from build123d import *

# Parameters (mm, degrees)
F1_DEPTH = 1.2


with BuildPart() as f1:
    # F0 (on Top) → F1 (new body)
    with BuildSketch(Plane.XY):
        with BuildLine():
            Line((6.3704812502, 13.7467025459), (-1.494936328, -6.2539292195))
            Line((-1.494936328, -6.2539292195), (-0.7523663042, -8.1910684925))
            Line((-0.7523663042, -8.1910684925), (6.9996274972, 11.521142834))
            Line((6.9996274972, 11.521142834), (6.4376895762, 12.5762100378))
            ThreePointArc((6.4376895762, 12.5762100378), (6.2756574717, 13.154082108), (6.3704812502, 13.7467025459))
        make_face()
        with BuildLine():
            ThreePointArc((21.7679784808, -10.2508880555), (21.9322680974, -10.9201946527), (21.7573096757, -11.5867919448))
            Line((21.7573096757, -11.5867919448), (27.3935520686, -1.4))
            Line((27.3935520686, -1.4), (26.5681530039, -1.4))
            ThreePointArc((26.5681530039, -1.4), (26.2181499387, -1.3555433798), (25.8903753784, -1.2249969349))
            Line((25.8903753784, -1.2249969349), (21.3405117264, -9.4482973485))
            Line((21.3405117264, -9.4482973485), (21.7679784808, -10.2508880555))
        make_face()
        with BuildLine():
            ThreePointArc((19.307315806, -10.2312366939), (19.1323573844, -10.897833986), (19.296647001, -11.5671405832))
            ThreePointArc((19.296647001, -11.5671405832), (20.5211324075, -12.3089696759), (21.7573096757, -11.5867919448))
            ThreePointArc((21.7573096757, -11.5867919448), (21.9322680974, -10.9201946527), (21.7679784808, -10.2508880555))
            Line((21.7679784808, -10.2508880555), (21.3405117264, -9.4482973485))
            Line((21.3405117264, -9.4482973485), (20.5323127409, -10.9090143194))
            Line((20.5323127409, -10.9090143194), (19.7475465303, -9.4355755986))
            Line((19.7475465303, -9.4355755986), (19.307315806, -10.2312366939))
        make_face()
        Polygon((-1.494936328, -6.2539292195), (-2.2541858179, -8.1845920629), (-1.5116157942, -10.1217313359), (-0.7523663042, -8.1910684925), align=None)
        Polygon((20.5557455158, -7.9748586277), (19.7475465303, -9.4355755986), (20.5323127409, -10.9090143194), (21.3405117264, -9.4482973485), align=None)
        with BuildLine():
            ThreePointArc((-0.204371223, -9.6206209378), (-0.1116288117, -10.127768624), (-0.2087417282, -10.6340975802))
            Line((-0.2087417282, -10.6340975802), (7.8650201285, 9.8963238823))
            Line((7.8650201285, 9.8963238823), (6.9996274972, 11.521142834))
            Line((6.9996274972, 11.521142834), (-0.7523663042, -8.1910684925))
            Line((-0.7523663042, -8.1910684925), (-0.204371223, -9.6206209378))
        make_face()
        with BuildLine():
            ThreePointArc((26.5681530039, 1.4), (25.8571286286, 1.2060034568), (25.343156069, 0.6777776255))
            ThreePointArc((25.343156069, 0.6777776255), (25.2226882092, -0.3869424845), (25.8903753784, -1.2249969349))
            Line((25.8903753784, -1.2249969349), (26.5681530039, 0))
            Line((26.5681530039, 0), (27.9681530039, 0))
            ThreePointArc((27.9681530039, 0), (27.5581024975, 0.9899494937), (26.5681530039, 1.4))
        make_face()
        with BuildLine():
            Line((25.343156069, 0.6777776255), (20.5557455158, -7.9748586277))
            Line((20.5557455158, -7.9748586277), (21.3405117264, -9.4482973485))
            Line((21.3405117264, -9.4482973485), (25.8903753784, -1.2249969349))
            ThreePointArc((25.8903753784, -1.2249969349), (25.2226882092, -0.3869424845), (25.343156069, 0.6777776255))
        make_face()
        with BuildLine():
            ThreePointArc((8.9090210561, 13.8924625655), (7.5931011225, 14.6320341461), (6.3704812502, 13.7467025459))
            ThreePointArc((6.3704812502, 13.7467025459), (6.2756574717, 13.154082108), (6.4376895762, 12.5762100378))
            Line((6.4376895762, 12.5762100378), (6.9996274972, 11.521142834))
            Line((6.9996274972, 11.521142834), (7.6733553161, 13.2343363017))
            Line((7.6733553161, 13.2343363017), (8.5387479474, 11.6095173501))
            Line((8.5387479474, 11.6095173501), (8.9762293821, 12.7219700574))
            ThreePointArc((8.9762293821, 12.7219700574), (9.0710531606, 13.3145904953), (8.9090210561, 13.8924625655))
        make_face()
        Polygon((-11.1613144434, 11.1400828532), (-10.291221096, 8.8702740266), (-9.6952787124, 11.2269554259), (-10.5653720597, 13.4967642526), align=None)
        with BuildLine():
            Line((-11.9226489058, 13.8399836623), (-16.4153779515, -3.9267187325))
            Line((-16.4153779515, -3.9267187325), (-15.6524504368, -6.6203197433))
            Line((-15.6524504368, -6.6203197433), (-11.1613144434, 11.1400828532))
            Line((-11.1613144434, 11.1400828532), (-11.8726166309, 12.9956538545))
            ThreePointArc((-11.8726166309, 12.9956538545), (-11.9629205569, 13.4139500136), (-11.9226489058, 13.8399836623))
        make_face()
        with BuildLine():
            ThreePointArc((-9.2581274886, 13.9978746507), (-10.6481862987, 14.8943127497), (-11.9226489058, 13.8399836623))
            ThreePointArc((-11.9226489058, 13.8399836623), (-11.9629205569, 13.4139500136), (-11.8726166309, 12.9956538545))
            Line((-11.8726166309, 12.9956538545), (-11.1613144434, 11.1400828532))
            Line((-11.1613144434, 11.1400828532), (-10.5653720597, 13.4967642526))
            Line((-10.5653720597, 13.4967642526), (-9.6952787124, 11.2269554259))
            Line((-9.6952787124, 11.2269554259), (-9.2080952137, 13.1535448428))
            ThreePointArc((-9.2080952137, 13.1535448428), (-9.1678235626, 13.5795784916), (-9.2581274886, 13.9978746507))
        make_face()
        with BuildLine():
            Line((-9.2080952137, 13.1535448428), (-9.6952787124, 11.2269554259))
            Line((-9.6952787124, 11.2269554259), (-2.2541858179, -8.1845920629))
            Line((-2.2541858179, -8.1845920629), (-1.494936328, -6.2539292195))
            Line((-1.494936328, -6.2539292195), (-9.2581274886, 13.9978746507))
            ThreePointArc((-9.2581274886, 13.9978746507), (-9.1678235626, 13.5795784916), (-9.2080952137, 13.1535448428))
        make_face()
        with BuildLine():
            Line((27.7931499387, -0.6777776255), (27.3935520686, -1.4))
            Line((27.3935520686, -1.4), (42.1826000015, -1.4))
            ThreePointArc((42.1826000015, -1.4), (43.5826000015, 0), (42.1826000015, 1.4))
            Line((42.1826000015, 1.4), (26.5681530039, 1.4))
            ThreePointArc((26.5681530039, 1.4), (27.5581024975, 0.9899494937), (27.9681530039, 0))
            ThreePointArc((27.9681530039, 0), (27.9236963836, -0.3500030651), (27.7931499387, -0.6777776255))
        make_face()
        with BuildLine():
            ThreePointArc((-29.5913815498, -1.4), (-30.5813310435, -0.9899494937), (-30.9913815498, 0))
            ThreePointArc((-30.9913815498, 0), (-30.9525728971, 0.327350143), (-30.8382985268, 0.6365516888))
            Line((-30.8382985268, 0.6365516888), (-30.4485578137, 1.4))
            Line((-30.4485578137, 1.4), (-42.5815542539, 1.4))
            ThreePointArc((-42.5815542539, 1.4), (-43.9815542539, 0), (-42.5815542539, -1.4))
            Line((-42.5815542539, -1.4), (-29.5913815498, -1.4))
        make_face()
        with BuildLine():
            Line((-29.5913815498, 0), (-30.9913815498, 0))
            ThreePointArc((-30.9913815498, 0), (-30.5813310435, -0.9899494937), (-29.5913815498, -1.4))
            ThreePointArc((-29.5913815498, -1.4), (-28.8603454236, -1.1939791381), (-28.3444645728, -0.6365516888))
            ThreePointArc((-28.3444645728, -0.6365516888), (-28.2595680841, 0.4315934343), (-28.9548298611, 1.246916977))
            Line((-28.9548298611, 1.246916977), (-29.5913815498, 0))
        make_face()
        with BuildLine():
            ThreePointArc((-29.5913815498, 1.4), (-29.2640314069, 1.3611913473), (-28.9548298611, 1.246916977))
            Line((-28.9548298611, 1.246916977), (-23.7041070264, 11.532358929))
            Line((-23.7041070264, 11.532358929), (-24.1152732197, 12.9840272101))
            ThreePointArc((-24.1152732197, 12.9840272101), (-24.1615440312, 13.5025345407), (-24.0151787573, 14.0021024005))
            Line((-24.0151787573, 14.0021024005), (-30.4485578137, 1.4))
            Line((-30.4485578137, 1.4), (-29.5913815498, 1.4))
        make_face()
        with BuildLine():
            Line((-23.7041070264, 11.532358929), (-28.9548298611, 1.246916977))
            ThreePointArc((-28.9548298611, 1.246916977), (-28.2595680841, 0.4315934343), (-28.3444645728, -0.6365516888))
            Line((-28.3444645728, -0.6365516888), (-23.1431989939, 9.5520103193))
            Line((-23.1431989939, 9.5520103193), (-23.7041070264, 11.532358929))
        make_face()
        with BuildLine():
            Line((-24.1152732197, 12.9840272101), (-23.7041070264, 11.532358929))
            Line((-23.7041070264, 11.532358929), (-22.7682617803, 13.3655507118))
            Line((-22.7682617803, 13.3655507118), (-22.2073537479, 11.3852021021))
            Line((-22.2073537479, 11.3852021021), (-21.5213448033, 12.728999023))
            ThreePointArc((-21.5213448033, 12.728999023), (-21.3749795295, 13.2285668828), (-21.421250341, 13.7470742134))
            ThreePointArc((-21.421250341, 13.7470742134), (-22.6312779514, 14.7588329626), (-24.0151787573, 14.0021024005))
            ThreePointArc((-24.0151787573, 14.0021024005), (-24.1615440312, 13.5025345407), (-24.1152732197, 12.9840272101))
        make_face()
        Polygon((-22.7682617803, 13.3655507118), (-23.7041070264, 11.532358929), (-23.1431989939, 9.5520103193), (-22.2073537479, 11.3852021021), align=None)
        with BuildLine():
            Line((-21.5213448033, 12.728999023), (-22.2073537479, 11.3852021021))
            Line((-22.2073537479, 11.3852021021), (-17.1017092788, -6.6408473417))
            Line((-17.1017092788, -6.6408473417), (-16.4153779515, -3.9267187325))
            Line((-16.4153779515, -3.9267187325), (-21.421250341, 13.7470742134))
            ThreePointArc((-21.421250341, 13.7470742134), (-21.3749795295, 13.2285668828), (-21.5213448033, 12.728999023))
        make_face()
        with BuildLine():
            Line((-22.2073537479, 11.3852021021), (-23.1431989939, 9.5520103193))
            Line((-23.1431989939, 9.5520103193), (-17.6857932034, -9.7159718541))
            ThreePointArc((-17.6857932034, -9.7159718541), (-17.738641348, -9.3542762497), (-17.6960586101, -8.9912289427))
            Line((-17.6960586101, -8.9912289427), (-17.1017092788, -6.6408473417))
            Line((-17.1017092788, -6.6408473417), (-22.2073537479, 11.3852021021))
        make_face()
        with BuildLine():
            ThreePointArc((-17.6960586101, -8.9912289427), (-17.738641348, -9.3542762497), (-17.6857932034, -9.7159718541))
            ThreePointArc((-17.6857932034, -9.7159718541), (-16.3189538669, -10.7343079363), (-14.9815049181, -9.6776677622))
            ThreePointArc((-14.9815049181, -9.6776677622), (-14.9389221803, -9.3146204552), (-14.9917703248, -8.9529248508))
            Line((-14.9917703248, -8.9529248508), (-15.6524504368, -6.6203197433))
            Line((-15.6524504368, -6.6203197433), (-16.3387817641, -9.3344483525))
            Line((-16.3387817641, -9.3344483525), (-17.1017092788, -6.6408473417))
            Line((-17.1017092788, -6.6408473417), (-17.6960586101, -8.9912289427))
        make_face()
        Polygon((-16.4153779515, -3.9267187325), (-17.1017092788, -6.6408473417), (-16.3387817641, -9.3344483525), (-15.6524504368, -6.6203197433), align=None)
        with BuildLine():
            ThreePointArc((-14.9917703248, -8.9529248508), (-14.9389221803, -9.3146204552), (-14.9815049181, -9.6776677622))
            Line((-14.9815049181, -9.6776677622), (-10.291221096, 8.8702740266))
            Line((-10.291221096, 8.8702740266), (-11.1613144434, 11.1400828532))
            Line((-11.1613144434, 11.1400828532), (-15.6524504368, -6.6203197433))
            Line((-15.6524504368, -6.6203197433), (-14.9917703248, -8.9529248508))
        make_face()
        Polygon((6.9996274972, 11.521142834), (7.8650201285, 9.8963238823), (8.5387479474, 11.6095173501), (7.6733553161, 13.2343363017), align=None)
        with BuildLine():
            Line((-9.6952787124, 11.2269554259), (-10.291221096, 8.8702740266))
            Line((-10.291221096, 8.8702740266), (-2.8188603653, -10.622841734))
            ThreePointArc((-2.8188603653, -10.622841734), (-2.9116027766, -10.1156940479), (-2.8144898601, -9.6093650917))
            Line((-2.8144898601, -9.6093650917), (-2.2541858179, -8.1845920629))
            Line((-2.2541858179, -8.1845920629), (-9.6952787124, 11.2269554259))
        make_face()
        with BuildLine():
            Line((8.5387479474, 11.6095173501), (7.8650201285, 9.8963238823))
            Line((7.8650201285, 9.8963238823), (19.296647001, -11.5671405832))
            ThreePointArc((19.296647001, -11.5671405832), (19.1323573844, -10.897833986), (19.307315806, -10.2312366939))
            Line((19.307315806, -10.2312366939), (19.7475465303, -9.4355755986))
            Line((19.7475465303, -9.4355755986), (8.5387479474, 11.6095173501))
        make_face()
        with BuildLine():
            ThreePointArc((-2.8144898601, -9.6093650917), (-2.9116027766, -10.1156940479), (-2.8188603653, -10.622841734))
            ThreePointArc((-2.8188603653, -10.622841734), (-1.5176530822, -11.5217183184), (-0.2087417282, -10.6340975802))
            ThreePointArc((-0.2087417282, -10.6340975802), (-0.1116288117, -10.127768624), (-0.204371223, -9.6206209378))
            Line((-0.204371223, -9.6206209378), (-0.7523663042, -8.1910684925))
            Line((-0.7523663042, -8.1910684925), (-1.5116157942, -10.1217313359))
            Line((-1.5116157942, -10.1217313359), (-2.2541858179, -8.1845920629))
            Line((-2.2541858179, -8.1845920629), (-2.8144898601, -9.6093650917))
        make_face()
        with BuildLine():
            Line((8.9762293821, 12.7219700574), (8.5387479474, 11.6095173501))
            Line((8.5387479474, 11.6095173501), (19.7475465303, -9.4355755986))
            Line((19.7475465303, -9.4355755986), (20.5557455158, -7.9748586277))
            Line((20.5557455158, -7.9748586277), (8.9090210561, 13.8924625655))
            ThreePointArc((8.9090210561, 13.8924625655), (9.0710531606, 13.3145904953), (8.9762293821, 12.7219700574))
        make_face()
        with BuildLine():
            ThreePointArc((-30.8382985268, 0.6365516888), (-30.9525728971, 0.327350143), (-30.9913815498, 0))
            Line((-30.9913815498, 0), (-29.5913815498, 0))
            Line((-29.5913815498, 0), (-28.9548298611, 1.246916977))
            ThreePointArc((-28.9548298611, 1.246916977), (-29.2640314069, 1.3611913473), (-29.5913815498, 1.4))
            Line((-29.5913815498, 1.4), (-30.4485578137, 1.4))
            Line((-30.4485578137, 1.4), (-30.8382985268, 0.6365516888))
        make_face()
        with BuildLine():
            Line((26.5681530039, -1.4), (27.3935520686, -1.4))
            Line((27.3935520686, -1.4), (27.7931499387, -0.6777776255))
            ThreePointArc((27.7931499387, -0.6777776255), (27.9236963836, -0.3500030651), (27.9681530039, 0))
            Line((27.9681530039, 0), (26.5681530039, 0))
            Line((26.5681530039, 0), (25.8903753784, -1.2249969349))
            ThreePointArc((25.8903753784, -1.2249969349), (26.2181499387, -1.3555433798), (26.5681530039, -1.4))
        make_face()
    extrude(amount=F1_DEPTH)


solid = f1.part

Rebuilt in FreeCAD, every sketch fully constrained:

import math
import FreeCAD as App
import Part
import Sketcher

V = App.Vector
Q = App.Units.Quantity

doc = App.newDocument("Part")
params = doc.addObject("Spreadsheet::Sheet", "Params")
for row, (alias, value) in enumerate([
    ("sketch1_radius", "1.4 mm"),
    ("pad1_length", "1.2 mm"),
], start=1):
    params.set(f"A{row}", alias)
    params.set(f"B{row}", "=" + value)
    params.setAlias(f"B{row}", alias)

body = doc.addObject("PartDesign::Body", "Body")

sketch1 = body.newObject("Sketcher::SketchObject", "Sketch")
sketch1.AttachmentSupport = (doc.getObject("XY_Plane"), [""])
sketch1.MapMode = "FlatFace"
sketch1.addGeometry(Part.LineSegment(V(21.75731, -11.586792, 0), V(27.393552, -1.4, 0)), False)
sketch1.addGeometry(Part.LineSegment(V(27.393552, -1.4, 0), V(42.1826, -1.4, 0)), False)
sketch1.addGeometry(Part.ArcOfCircle(Part.Circle(V(42.1826, 0, 0), V(0, 0, 1), 1.4), math.radians(-90), math.radians(90)), False)
sketch1.addGeometry(Part.LineSegment(V(42.1826, 1.4, 0), V(26.568153, 1.4, 0)), False)
sketch1.addGeometry(Part.ArcOfCircle(Part.Circle(V(26.568153, 0, 0), V(0, 0, 1), 1.4), math.radians(90), math.radians(151.044716)), False)
sketch1.addGeometry(Part.LineSegment(V(25.343156, 0.677778, 0), V(20.555746, -7.974859, 0)), False)
sketch1.addGeometry(Part.LineSegment(V(20.555746, -7.974859, 0), V(8.909021, 13.892463, 0)), False)
sketch1.addGeometry(Part.ArcOfCircle(Part.Circle(V(7.673355, 13.234336, 0), V(0, 0, 1), 1.4), math.radians(28.040151), math.radians(158.532347)), False)
sketch1.addGeometry(Part.LineSegment(V(6.370481, 13.746703, 0), V(-1.494936, -6.253929, 0)), False)
sketch1.addGeometry(Part.LineSegment(V(-1.494936, -6.253929, 0), V(-9.258127, 13.997875, 0)), False)
sketch1.addGeometry(Part.ArcOfCircle(Part.Circle(V(-10.565372, 13.496764, 0), V(0, 0, 1), 1.4), math.radians(20.973493), math.radians(165.808904)), False)
sketch1.addGeometry(Part.LineSegment(V(-11.922649, 13.839984, 0), V(-16.415378, -3.926719, 0)), False)
sketch1.addGeometry(Part.LineSegment(V(-16.415378, -3.926719, 0), V(-21.42125, 13.747074, 0)), False)
sketch1.addGeometry(Part.ArcOfCircle(Part.Circle(V(-22.768262, 13.365551, 0), V(0, 0, 1), 1.4), math.radians(15.814085), math.radians(152.955668)), False)
sketch1.addGeometry(Part.LineSegment(V(-24.015179, 14.002102, 0), V(-30.448558, 1.4, 0)), False)
sketch1.addGeometry(Part.LineSegment(V(-30.448558, 1.4, 0), V(-42.581554, 1.4, 0)), False)
sketch1.addGeometry(Part.ArcOfCircle(Part.Circle(V(-42.581554, 0, 0), V(0, 0, 1), 1.4), math.radians(90), math.radians(270)), False)
sketch1.addGeometry(Part.LineSegment(V(-42.581554, -1.4, 0), V(-29.591382, -1.4, 0)), False)
sketch1.addGeometry(Part.ArcOfCircle(Part.Circle(V(-29.591382, 0, 0), V(0, 0, 1), 1.4), math.radians(-90), math.radians(-27.044332)), False)
sketch1.addGeometry(Part.LineSegment(V(-28.344465, -0.636552, 0), V(-23.143199, 9.55201, 0)), False)
sketch1.addGeometry(Part.LineSegment(V(-23.143199, 9.55201, 0), V(-17.685793, -9.715972, 0)), False)
sketch1.addGeometry(Part.ArcOfCircle(Part.Circle(V(-16.338782, -9.334448, 0), V(0, 0, 1), 1.4), math.radians(-164.185915), math.radians(-14.191096)), False)
sketch1.addGeometry(Part.LineSegment(V(-14.981505, -9.677668, 0), V(-10.291221, 8.870274, 0)), False)
sketch1.addGeometry(Part.LineSegment(V(-10.291221, 8.870274, 0), V(-2.81886, -10.622842, 0)), False)
sketch1.addGeometry(Part.ArcOfCircle(Part.Circle(V(-1.511616, -10.121731, 0), V(0, 0, 1), 1.4), math.radians(-159.026507), math.radians(-21.467653)), False)
sketch1.addGeometry(Part.LineSegment(V(-0.208742, -10.634098, 0), V(7.86502, 9.896324, 0)), False)
sketch1.addGeometry(Part.LineSegment(V(7.86502, 9.896324, 0), V(19.296647, -11.567141, 0)), False)
sketch1.addGeometry(Part.ArcOfCircle(Part.Circle(V(20.532313, -10.909014, 0), V(0, 0, 1), 1.4), math.radians(-151.959849), math.radians(-28.955283)), False)
sketch1.addConstraint(Sketcher.Constraint("Coincident", 0, 2, 1, 1))
sketch1.addConstraint(Sketcher.Constraint("Tangent", 1, 2, 2, 1))
sketch1.addConstraint(Sketcher.Constraint("Tangent", 2, 2, 3, 1))
sketch1.addConstraint(Sketcher.Constraint("Tangent", 3, 2, 4, 1))
sketch1.addConstraint(Sketcher.Constraint("Tangent", 4, 2, 5, 1))
sketch1.addConstraint(Sketcher.Constraint("Coincident", 5, 2, 6, 1))
sketch1.addConstraint(Sketcher.Constraint("Tangent", 6, 2, 7, 1))
sketch1.addConstraint(Sketcher.Constraint("Tangent", 7, 2, 8, 1))
sketch1.addConstraint(Sketcher.Constraint("Coincident", 8, 2, 9, 1))
sketch1.addConstraint(Sketcher.Constraint("Tangent", 9, 2, 10, 1))
sketch1.addConstraint(Sketcher.Constraint("Tangent", 10, 2, 11, 1))
sketch1.addConstraint(Sketcher.Constraint("Coincident", 11, 2, 12, 1))
sketch1.addConstraint(Sketcher.Constraint("Tangent", 12, 2, 13, 1))
sketch1.addConstraint(Sketcher.Constraint("Tangent", 13, 2, 14, 1))
sketch1.addConstraint(Sketcher.Constraint("Coincident", 14, 2, 15, 1))
sketch1.addConstraint(Sketcher.Constraint("Tangent", 15, 2, 16, 1))
sketch1.addConstraint(Sketcher.Constraint("Tangent", 16, 2, 17, 1))
sketch1.addConstraint(Sketcher.Constraint("Tangent", 17, 2, 18, 1))
sketch1.addConstraint(Sketcher.Constraint("Tangent", 18, 2, 19, 1))
sketch1.addConstraint(Sketcher.Constraint("Coincident", 19, 2, 20, 1))
sketch1.addConstraint(Sketcher.Constraint("Tangent", 20, 2, 21, 1))
sketch1.addConstraint(Sketcher.Constraint("Tangent", 21, 2, 22, 1))
sketch1.addConstraint(Sketcher.Constraint("Coincident", 22, 2, 23, 1))
sketch1.addConstraint(Sketcher.Constraint("Tangent", 23, 2, 24, 1))
sketch1.addConstraint(Sketcher.Constraint("Tangent", 24, 2, 25, 1))
sketch1.addConstraint(Sketcher.Constraint("Coincident", 25, 2, 26, 1))
sketch1.addConstraint(Sketcher.Constraint("Tangent", 26, 2, 27, 1))
sketch1.addConstraint(Sketcher.Constraint("Tangent", 27, 2, 0, 1))
sketch1.addConstraint(Sketcher.Constraint("Horizontal", 1))
sketch1.addConstraint(Sketcher.Constraint("Horizontal", 3))
sketch1.addConstraint(Sketcher.Constraint("Horizontal", 15))
sketch1.addConstraint(Sketcher.Constraint("Horizontal", 17))
sketch1.addConstraint(Sketcher.Constraint("Equal", 2, 4))
sketch1.addConstraint(Sketcher.Constraint("Equal", 4, 7))
sketch1.addConstraint(Sketcher.Constraint("Equal", 7, 10))
sketch1.addConstraint(Sketcher.Constraint("Equal", 10, 13))
sketch1.addConstraint(Sketcher.Constraint("Equal", 13, 16))
sketch1.addConstraint(Sketcher.Constraint("Equal", 16, 18))
sketch1.addConstraint(Sketcher.Constraint("Equal", 18, 21))
sketch1.addConstraint(Sketcher.Constraint("Equal", 21, 24))
sketch1.addConstraint(Sketcher.Constraint("Equal", 24, 27))
sketch1.addConstraint(Sketcher.Constraint("PointOnObject", 2, 3, -1))
sketch1.addConstraint(Sketcher.Constraint("PointOnObject", 16, 3, -1))
sketch1.addConstraint(Sketcher.Constraint("Parallel", 0, 5))
sketch1.addConstraint(Sketcher.Constraint("Parallel", 14, 19))
sketch1.addConstraint(Sketcher.Constraint("Parallel", 12, 20))
sketch1.addConstraint(Sketcher.Constraint("Parallel", 11, 22))
sketch1.addConstraint(Sketcher.Constraint("Parallel", 9, 23))
sketch1.addConstraint(Sketcher.Constraint("Parallel", 8, 25))
sketch1.addConstraint(Sketcher.Constraint("Parallel", 6, 26))
sketch1.addConstraint(Sketcher.Constraint("Radius", 2, Q("1.4 mm")))
sketch1.addConstraint(Sketcher.Constraint("DistanceY", 21, 3, 13, 3, Q("22.699999 mm")))
sketch1.addConstraint(Sketcher.Constraint("DistanceX", 25, 2, 6, 2, Q("1.044001 mm")))
sketch1.addConstraint(Sketcher.Constraint("DistanceX", -1, 1, 2, 3, Q("42.1826 mm")))
sketch1.addConstraint(Sketcher.Constraint("DistanceX", 19, 2, -1, 1, Q("23.143199 mm")))
sketch1.addConstraint(Sketcher.Constraint("DistanceX", 18, 3, 21, 3, Q("13.2526 mm")))
sketch1.addConstraint(Sketcher.Constraint("DistanceX", 4, 3, 0, 2, Q("0.825399 mm")))
sketch1.addConstraint(Sketcher.Constraint("DistanceY", 10, 3, 6, 2, Q("0.395698 mm")))
sketch1.addConstraint(Sketcher.Constraint("DistanceX", 12, 2, 10, 2, Q("9.498601 mm")))
sketch1.addConstraint(Sketcher.Constraint("DistanceY", 12, 2, 9, 2, Q("0.2508 mm")))
sketch1.addConstraint(Sketcher.Constraint("DistanceY", 22, 2, 9, 2, Q("5.127601 mm")))
sketch1.addConstraint(Sketcher.Constraint("DistanceX", 26, 2, 5, 2, Q("1.259099 mm")))
sketch1.addConstraint(Sketcher.Constraint("Distance", 5, Q("9.888752 mm")))
sketch1.addConstraint(Sketcher.Constraint("Distance", 6, Q("24.775511 mm")))
sketch1.addConstraint(Sketcher.Constraint("Distance", 9, Q("21.688769 mm")))
sketch1.addConstraint(Sketcher.Constraint("Distance", 23, Q("20.876248 mm")))
sketch1.addConstraint(Sketcher.Constraint("Distance", 25, Q("22.060912 mm")))
sketch1.addConstraint(Sketcher.Constraint("DistanceX", 1, 1, 1, 2, Q("14.789048 mm")))
sketch1.addConstraint(Sketcher.Constraint("DistanceX", 15, 2, 15, 1, Q("12.132996 mm")))
sketch1.addConstraint(Sketcher.Constraint("DistanceX", 17, 1, 17, 2, Q("12.990173 mm")))
sketch1.addConstraint(Sketcher.Constraint("DistanceX", 13, 3, -1, 1, Q("22.768262 mm")))
sketch1.addConstraint(Sketcher.Constraint("DistanceY", -1, 1, 13, 3, Q("13.365551 mm")))
sketch1.addConstraint(Sketcher.Constraint("DistanceX", 18, 3, -1, 1, Q("29.591382 mm")))
sketch1.addConstraint(Sketcher.Constraint("DistanceY", 24, 3, -1, 1, Q("10.121731 mm")))
sketch1.setExpression("Constraints[50]", "Params.sketch1_radius")
pad1 = body.newObject("PartDesign::Pad", "Pad")
pad1.Profile = sketch1
pad1.setExpression("Length", "Params.pad1_length")

doc.recompute()
